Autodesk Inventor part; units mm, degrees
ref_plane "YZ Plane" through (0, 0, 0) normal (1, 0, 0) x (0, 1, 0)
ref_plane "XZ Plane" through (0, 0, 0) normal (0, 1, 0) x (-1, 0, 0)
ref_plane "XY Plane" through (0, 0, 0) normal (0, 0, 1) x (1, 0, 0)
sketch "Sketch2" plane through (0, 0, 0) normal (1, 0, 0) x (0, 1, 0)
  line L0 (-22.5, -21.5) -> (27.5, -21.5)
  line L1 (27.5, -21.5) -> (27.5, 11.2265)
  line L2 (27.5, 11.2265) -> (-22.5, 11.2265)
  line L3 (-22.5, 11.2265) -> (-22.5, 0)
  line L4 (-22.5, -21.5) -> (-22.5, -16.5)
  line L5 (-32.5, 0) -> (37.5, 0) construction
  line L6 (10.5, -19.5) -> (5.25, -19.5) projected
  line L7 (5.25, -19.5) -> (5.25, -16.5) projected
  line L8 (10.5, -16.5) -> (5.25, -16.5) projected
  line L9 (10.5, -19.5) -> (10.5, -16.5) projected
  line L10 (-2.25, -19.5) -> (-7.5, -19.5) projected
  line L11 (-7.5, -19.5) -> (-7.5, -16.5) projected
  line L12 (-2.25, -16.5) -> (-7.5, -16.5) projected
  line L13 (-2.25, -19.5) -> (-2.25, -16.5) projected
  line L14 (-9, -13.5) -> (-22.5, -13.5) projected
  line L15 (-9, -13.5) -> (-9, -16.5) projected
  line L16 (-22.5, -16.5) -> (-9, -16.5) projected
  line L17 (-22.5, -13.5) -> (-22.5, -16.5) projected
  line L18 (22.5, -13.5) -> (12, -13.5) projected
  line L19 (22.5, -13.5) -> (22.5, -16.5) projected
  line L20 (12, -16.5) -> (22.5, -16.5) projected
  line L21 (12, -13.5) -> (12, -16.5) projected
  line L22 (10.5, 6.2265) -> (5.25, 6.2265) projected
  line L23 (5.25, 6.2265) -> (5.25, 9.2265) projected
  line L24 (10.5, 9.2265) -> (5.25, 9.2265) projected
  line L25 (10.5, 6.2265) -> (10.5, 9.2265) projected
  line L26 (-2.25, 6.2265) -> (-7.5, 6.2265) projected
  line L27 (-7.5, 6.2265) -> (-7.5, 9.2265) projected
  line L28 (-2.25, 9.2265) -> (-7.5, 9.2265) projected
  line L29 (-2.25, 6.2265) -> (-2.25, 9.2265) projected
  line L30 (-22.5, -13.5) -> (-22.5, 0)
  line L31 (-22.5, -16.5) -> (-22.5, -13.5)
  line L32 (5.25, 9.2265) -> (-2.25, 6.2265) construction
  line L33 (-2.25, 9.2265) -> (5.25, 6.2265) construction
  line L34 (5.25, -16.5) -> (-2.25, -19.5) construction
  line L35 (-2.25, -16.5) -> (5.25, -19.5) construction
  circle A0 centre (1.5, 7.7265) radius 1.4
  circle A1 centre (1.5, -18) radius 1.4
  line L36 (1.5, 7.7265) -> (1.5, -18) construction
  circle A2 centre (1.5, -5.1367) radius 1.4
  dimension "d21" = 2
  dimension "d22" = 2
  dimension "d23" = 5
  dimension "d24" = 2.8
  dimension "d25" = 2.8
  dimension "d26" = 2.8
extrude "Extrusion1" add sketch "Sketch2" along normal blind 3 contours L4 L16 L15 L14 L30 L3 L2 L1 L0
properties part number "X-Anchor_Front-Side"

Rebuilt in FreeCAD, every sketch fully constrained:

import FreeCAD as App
import Part
import Sketcher

V = App.Vector
Q = App.Units.Quantity

doc = App.newDocument("Part")
body = doc.addObject("PartDesign::Body", "Body")

# Sketch on YZ plane
sketch1 = doc.addObject("Sketcher::SketchObject", "Sketch")
body.addObject(sketch1)
sketch1.AttachmentSupport = (doc.YZ_Plane, [""])
sketch1.MapMode = "FlatFace"
sketch1.addGeometry(Part.LineSegment(V(-22.5, -16.5, 0), V(-22.5, -21.5, 0)), False)
sketch1.addGeometry(Part.LineSegment(V(-22.5, -21.5, 0), V(27.5, -21.5, 0)), False)
sketch1.addGeometry(Part.LineSegment(V(27.5, -21.5, 0), V(27.5, 11.2, 0)), False)
sketch1.addGeometry(Part.LineSegment(V(27.5, 11.2, 0), V(-22.5, 11.2, 0)), False)
sketch1.addGeometry(Part.LineSegment(V(-22.5, 11.2, 0), V(-22.5, -13.5, 0)), False)
sketch1.addGeometry(Part.LineSegment(V(-22.5, -13.5, 0), V(-9, -13.5, 0)), False)
sketch1.addGeometry(Part.LineSegment(V(-9, -13.5, 0), V(-9, -16.5, 0)), False)
sketch1.addGeometry(Part.LineSegment(V(-9, -16.5, 0), V(-22.5, -16.5, 0)), False)
sketch1.addGeometry(Part.LineSegment(V(-2.2, -16.5, 0), V(-2.2, -19.5, 0)), False)
sketch1.addGeometry(Part.LineSegment(V(-2.2, -19.5, 0), V(-7.5, -19.5, 0)), False)
sketch1.addGeometry(Part.LineSegment(V(-7.5, -19.5, 0), V(-7.5, -16.5, 0)), False)
sketch1.addGeometry(Part.LineSegment(V(-7.5, -16.5, 0), V(-2.2, -16.5, 0)), False)
sketch1.addGeometry(Part.Circle(V(1.5, -18, 0), V(0, 0, 1), 1.4), False)
sketch1.addGeometry(Part.LineSegment(V(10.5, -16.5, 0), V(10.5, -19.5, 0)), False)
sketch1.addGeometry(Part.LineSegment(V(10.5, -19.5, 0), V(5.2, -19.5, 0)), False)
sketch1.addGeometry(Part.LineSegment(V(5.2, -19.5, 0), V(5.2, -16.5, 0)), False)
sketch1.addGeometry(Part.LineSegment(V(5.2, -16.5, 0), V(10.5, -16.5, 0)), False)
sketch1.addGeometry(Part.LineSegment(V(12, -13.5, 0), V(22.5, -13.5, 0)), False)
sketch1.addGeometry(Part.LineSegment(V(22.5, -13.5, 0), V(22.5, -16.5, 0)), False)
sketch1.addGeometry(Part.LineSegment(V(22.5, -16.5, 0), V(12, -16.5, 0)), False)
sketch1.addGeometry(Part.LineSegment(V(12, -16.5, 0), V(12, -13.5, 0)), False)
sketch1.addGeometry(Part.Circle(V(1.5, -5.1, 0), V(0, 0, 1), 1.4), False)
sketch1.addGeometry(Part.LineSegment(V(-2.2, 9.2, 0), V(-2.2, 6.2, 0)), False)
sketch1.addGeometry(Part.LineSegment(V(-2.2, 6.2, 0), V(-7.5, 6.2, 0)), False)
sketch1.addGeometry(Part.LineSegment(V(-7.5, 6.2, 0), V(-7.5, 9.2, 0)), False)
sketch1.addGeometry(Part.LineSegment(V(-7.5, 9.2, 0), V(-2.2, 9.2, 0)), False)
sketch1.addGeometry(Part.Circle(V(1.5, 7.7, 0), V(0, 0, 1), 1.4), False)
sketch1.addGeometry(Part.LineSegment(V(10.5, 9.2, 0), V(10.5, 6.2, 0)), False)
sketch1.addGeometry(Part.LineSegment(V(10.5, 6.2, 0), V(5.2, 6.2, 0)), False)
sketch1.addGeometry(Part.LineSegment(V(5.2, 6.2, 0), V(5.2, 9.2, 0)), False)
sketch1.addGeometry(Part.LineSegment(V(5.2, 9.2, 0), V(10.5, 9.2, 0)), False)
sketch1.addConstraint(Sketcher.Constraint("Coincident", 0, 2, 1, 1))
sketch1.addConstraint(Sketcher.Constraint("Coincident", 1, 2, 2, 1))
sketch1.addConstraint(Sketcher.Constraint("Coincident", 2, 2, 3, 1))
sketch1.addConstraint(Sketcher.Constraint("Coincident", 3, 2, 4, 1))
sketch1.addConstraint(Sketcher.Constraint("Coincident", 4, 2, 5, 1))
sketch1.addConstraint(Sketcher.Constraint("Coincident", 5, 2, 6, 1))
sketch1.addConstraint(Sketcher.Constraint("Coincident", 6, 2, 7, 1))
sketch1.addConstraint(Sketcher.Constraint("Coincident", 7, 2, 0, 1))
sketch1.addConstraint(Sketcher.Constraint("Coincident", 8, 2, 9, 1))
sketch1.addConstraint(Sketcher.Constraint("Coincident", 9, 2, 10, 1))
sketch1.addConstraint(Sketcher.Constraint("Coincident", 10, 2, 11, 1))
sketch1.addConstraint(Sketcher.Constraint("Coincident", 11, 2, 8, 1))
sketch1.addConstraint(Sketcher.Constraint("Coincident", 13, 2, 14, 1))
sketch1.addConstraint(Sketcher.Constraint("Coincident", 14, 2, 15, 1))
sketch1.addConstraint(Sketcher.Constraint("Coincident", 15, 2, 16, 1))
sketch1.addConstraint(Sketcher.Constraint("Coincident", 16, 2, 13, 1))
sketch1.addConstraint(Sketcher.Constraint("Coincident", 17, 2, 18, 1))
sketch1.addConstraint(Sketcher.Constraint("Coincident", 18, 2, 19, 1))
sketch1.addConstraint(Sketcher.Constraint("Coincident", 19, 2, 20, 1))
sketch1.addConstraint(Sketcher.Constraint("Coincident", 20, 2, 17, 1))
sketch1.addConstraint(Sketcher.Constraint("Coincident", 22, 2, 23, 1))
sketch1.addConstraint(Sketcher.Constraint("Coincident", 23, 2, 24, 1))
sketch1.addConstraint(Sketcher.Constraint("Coincident", 24, 2, 25, 1))
sketch1.addConstraint(Sketcher.Constraint("Coincident", 25, 2, 22, 1))
sketch1.addConstraint(Sketcher.Constraint("Coincident", 27, 2, 28, 1))
sketch1.addConstraint(Sketcher.Constraint("Coincident", 28, 2, 29, 1))
sketch1.addConstraint(Sketcher.Constraint("Coincident", 29, 2, 30, 1))
sketch1.addConstraint(Sketcher.Constraint("Coincident", 30, 2, 27, 1))
sketch1.addConstraint(Sketcher.Constraint("Vertical", 0))
sketch1.addConstraint(Sketcher.Constraint("Horizontal", 1))
sketch1.addConstraint(Sketcher.Constraint("Vertical", 2))
sketch1.addConstraint(Sketcher.Constraint("Horizontal", 3))
sketch1.addConstraint(Sketcher.Constraint("Vertical", 4))
sketch1.addConstraint(Sketcher.Constraint("Horizontal", 5))
sketch1.addConstraint(Sketcher.Constraint("Vertical", 6))
sketch1.addConstraint(Sketcher.Constraint("Horizontal", 7))
sketch1.addConstraint(Sketcher.Constraint("Vertical", 8))
sketch1.addConstraint(Sketcher.Constraint("Horizontal", 9))
sketch1.addConstraint(Sketcher.Constraint("Vertical", 10))
sketch1.addConstraint(Sketcher.Constraint("Horizontal", 11))
sketch1.addConstraint(Sketcher.Constraint("Vertical", 13))
sketch1.addConstraint(Sketcher.Constraint("Horizontal", 14))
sketch1.addConstraint(Sketcher.Constraint("Vertical", 15))
sketch1.addConstraint(Sketcher.Constraint("Horizontal", 16))
sketch1.addConstraint(Sketcher.Constraint("Horizontal", 17))
sketch1.addConstraint(Sketcher.Constraint("Vertical", 18))
sketch1.addConstraint(Sketcher.Constraint("Horizontal", 19))
sketch1.addConstraint(Sketcher.Constraint("Vertical", 20))
sketch1.addConstraint(Sketcher.Constraint("Vertical", 22))
sketch1.addConstraint(Sketcher.Constraint("Horizontal", 23))
sketch1.addConstraint(Sketcher.Constraint("Vertical", 24))
sketch1.addConstraint(Sketcher.Constraint("Horizontal", 25))
sketch1.addConstraint(Sketcher.Constraint("Vertical", 27))
sketch1.addConstraint(Sketcher.Constraint("Horizontal", 28))
sketch1.addConstraint(Sketcher.Constraint("Vertical", 29))
sketch1.addConstraint(Sketcher.Constraint("Horizontal", 30))
sketch1.addConstraint(Sketcher.Constraint("Equal", 12, 21))
sketch1.addConstraint(Sketcher.Constraint("Equal", 21, 26))
sketch1.addConstraint(Sketcher.Constraint("Symmetric", 4, 2, 17, 2, -2))
sketch1.addConstraint(Sketcher.Constraint("Symmetric", 7, 2, 18, 2, -2))
sketch1.addConstraint(Sketcher.Constraint("Horizontal", 7, 2, 10, 2))
sketch1.addConstraint(Sketcher.Constraint("Horizontal", 9, 2, 13, 2))
sketch1.addConstraint(Sketcher.Constraint("Horizontal", 11, 2, 15, 2))
sketch1.addConstraint(Sketcher.Constraint("Horizontal", 23, 2, 27, 2))
sketch1.addConstraint(Sketcher.Constraint("Horizontal", 25, 2, 29, 2))
sketch1.addConstraint(Sketcher.Constraint("Vertical", 12, 3, 21, 3))
sketch1.addConstraint(Sketcher.Constraint("Vertical", 21, 3, 26, 3))
sketch1.addConstraint(Sketcher.Constraint("Vertical", 11, 2, 22, 2))
sketch1.addConstraint(Sketcher.Constraint("Vertical", 10, 2, 23, 2))
sketch1.addConstraint(Sketcher.Constraint("Vertical", 16, 2, 27, 2))
sketch1.addConstraint(Sketcher.Constraint("Vertical", 15, 2, 28, 2))
sketch1.addConstraint(Sketcher.Constraint("Equal", 11, 14))
sketch1.addConstraint(Sketcher.Constraint("Equal", 6, 8))
sketch1.addConstraint(Sketcher.Constraint("Equal", 20, 22))
sketch1.addConstraint(Sketcher.Constraint("Diameter", 12, Q("2.8 mm")))
sketch1.addConstraint(Sketcher.Constraint("DistanceY", 0, 2, 0, 1, Q("5 mm")))
sketch1.addConstraint(Sketcher.Constraint("DistanceY", 0, 2, 8, 2, Q("2 mm")))
sketch1.addConstraint(Sketcher.Constraint("DistanceX", 17, 2, 1, 2, Q("5 mm")))
sketch1.addConstraint(Sketcher.Constraint("DistanceY", 22, 2, 3, 2, Q("5 mm")))
sketch1.addConstraint(Sketcher.Constraint("DistanceX", 1, 1, 1, 2, Q("50 mm")))
sketch1.addConstraint(Sketcher.Constraint("DistanceX", 5, 1, 5, 2, Q("13.5 mm")))
sketch1.addConstraint(Sketcher.Constraint("DistanceX", 17, 1, 17, 2, Q("10.5 mm")))
sketch1.addConstraint(Sketcher.Constraint("DistanceY", 12, 3, -1, 1, Q("18 mm")))
sketch1.addConstraint(Sketcher.Constraint("DistanceX", 0, 2, 12, 3, Q("24 mm")))
sketch1.addConstraint(Sketcher.Constraint("DistanceX", 9, 2, 12, 3, Q("9 mm")))
sketch1.addConstraint(Sketcher.Constraint("DistanceX", 12, 3, 13, 2, Q("9 mm")))
sketch1.addConstraint(Sketcher.Constraint("DistanceX", 9, 2, 9, 1, Q("5.25 mm")))
sketch1.addConstraint(Sketcher.Constraint("DistanceY", 0, 2, -1, 1, Q("21.5 mm")))
sketch1.addConstraint(Sketcher.Constraint("DistanceY", 26, 3, 2, 2, Q("3.5 mm")))
sketch1.addConstraint(Sketcher.Constraint("DistanceY", 2, 1, 2, 2, Q("32.7265 mm")))
sketch1.addConstraint(Sketcher.Constraint("DistanceY", 21, 3, -1, 1, Q("5.1367 mm")))
pad1 = doc.addObject("PartDesign::Pad", "Pad")
body.addObject(pad1)
pad1.Profile = sketch1
pad1.Length = 3

doc.recompute()
